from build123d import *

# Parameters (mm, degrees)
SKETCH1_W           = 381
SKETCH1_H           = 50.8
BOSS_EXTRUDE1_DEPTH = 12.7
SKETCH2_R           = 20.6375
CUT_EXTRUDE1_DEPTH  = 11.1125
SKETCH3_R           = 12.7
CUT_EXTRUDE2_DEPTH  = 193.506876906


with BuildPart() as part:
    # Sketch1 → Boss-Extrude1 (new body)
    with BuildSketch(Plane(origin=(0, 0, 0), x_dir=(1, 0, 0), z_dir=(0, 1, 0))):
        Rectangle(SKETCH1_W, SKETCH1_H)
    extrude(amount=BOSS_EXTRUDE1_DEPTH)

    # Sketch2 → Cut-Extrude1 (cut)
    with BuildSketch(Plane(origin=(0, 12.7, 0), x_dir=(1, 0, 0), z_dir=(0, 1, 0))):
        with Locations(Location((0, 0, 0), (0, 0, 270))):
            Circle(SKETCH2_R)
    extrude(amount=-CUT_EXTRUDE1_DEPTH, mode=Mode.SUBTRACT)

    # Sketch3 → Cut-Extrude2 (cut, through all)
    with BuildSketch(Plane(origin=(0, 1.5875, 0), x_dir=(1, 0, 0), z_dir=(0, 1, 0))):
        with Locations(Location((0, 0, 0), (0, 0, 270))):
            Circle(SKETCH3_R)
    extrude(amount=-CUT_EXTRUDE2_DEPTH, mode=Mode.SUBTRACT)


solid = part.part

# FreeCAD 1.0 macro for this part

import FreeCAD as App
import Part
import Sketcher
Q = App.Units.Quantity


def add_polygon(sketch, points):
    """Adds a closed chain of lines whose ends are joined by coincident constraints."""
    first, n = sketch.GeometryCount, len(points)
    for a, b in zip(points, points[1:] + points[:1]):
        sketch.addGeometry(Part.LineSegment(App.Vector(*a, 0), App.Vector(*b, 0)), False)
    for i in range(n):
        sketch.addConstraint(Sketcher.Constraint("Coincident", first + i, 2, first + (i + 1) % n, 1))

doc = App.newDocument("Part")
body = doc.addObject("PartDesign::Body", "Body")

sketch1 = body.newObject("Sketcher::SketchObject", "Sketch")
sketch1.AttachmentSupport = (doc.getObject("XZ_Plane"), [""])
sketch1.MapMode = "FlatFace"
add_polygon(sketch1, [(-190, -25), (-190, 25), (190, 25), (190, -25)])
sketch1.addConstraint(Sketcher.Constraint("Vertical", 0))
sketch1.addConstraint(Sketcher.Constraint("Horizontal", 1))
sketch1.addConstraint(Sketcher.Constraint("Vertical", 2))
sketch1.addConstraint(Sketcher.Constraint("Horizontal", 3))
sketch1.addConstraint(Sketcher.Constraint("Symmetric", 0, 2, 2, 2, -1, 1))
sketch1.addConstraint(Sketcher.Constraint("DistanceX", 1, 1, 1, 2, Q("15 in")))
sketch1.addConstraint(Sketcher.Constraint("DistanceY", 0, 1, 0, 2, Q("2 in")))
pad1 = body.newObject("PartDesign::Pad", "Pad")
pad1.Profile = sketch1
pad1.Length = Q("0.5 in")
pad1.Reversed = True

sketch2 = body.newObject("Sketcher::SketchObject", "Sketch001")
sketch2.AttachmentSupport = (doc.getObject("XZ_Plane"), [""])
sketch2.MapMode = "FlatFace"
sketch2.AttachmentOffset = App.Placement(App.Vector(0, 0, -0.5 * 25.4), App.Rotation())
sketch2.addGeometry(Part.Circle(App.Vector(0, 0, 0), App.Vector(0, 0, 1), 21), False)
sketch2.addConstraint(Sketcher.Constraint("Coincident", 0, 3, -1, 1))
sketch2.addConstraint(Sketcher.Constraint("Diameter", 0, Q("1.625 in")))
pocket1 = body.newObject("PartDesign::Pocket", "Pocket")
pocket1.Profile = sketch2
pocket1.Length = Q("0.4375 in")
pocket1.Reversed = True

sketch3 = body.newObject("Sketcher::SketchObject", "Sketch002")
sketch3.AttachmentSupport = (doc.getObject("XZ_Plane"), [""])
sketch3.MapMode = "FlatFace"
sketch3.AttachmentOffset = App.Placement(App.Vector(0, 0, -0.0625 * 25.4), App.Rotation())
sketch3.addGeometry(Part.Circle(App.Vector(0, 0, 0), App.Vector(0, 0, 1), 13), False)
sketch3.addConstraint(Sketcher.Constraint("Coincident", 0, 3, -1, 1))
sketch3.addConstraint(Sketcher.Constraint("Diameter", 0, Q("1 in")))
pocket2 = body.newObject("PartDesign::Pocket", "Pocket001")
pocket2.Profile = sketch3
pocket2.Type = "ThroughAll"
pocket2.Reversed = True

doc.recompute()
